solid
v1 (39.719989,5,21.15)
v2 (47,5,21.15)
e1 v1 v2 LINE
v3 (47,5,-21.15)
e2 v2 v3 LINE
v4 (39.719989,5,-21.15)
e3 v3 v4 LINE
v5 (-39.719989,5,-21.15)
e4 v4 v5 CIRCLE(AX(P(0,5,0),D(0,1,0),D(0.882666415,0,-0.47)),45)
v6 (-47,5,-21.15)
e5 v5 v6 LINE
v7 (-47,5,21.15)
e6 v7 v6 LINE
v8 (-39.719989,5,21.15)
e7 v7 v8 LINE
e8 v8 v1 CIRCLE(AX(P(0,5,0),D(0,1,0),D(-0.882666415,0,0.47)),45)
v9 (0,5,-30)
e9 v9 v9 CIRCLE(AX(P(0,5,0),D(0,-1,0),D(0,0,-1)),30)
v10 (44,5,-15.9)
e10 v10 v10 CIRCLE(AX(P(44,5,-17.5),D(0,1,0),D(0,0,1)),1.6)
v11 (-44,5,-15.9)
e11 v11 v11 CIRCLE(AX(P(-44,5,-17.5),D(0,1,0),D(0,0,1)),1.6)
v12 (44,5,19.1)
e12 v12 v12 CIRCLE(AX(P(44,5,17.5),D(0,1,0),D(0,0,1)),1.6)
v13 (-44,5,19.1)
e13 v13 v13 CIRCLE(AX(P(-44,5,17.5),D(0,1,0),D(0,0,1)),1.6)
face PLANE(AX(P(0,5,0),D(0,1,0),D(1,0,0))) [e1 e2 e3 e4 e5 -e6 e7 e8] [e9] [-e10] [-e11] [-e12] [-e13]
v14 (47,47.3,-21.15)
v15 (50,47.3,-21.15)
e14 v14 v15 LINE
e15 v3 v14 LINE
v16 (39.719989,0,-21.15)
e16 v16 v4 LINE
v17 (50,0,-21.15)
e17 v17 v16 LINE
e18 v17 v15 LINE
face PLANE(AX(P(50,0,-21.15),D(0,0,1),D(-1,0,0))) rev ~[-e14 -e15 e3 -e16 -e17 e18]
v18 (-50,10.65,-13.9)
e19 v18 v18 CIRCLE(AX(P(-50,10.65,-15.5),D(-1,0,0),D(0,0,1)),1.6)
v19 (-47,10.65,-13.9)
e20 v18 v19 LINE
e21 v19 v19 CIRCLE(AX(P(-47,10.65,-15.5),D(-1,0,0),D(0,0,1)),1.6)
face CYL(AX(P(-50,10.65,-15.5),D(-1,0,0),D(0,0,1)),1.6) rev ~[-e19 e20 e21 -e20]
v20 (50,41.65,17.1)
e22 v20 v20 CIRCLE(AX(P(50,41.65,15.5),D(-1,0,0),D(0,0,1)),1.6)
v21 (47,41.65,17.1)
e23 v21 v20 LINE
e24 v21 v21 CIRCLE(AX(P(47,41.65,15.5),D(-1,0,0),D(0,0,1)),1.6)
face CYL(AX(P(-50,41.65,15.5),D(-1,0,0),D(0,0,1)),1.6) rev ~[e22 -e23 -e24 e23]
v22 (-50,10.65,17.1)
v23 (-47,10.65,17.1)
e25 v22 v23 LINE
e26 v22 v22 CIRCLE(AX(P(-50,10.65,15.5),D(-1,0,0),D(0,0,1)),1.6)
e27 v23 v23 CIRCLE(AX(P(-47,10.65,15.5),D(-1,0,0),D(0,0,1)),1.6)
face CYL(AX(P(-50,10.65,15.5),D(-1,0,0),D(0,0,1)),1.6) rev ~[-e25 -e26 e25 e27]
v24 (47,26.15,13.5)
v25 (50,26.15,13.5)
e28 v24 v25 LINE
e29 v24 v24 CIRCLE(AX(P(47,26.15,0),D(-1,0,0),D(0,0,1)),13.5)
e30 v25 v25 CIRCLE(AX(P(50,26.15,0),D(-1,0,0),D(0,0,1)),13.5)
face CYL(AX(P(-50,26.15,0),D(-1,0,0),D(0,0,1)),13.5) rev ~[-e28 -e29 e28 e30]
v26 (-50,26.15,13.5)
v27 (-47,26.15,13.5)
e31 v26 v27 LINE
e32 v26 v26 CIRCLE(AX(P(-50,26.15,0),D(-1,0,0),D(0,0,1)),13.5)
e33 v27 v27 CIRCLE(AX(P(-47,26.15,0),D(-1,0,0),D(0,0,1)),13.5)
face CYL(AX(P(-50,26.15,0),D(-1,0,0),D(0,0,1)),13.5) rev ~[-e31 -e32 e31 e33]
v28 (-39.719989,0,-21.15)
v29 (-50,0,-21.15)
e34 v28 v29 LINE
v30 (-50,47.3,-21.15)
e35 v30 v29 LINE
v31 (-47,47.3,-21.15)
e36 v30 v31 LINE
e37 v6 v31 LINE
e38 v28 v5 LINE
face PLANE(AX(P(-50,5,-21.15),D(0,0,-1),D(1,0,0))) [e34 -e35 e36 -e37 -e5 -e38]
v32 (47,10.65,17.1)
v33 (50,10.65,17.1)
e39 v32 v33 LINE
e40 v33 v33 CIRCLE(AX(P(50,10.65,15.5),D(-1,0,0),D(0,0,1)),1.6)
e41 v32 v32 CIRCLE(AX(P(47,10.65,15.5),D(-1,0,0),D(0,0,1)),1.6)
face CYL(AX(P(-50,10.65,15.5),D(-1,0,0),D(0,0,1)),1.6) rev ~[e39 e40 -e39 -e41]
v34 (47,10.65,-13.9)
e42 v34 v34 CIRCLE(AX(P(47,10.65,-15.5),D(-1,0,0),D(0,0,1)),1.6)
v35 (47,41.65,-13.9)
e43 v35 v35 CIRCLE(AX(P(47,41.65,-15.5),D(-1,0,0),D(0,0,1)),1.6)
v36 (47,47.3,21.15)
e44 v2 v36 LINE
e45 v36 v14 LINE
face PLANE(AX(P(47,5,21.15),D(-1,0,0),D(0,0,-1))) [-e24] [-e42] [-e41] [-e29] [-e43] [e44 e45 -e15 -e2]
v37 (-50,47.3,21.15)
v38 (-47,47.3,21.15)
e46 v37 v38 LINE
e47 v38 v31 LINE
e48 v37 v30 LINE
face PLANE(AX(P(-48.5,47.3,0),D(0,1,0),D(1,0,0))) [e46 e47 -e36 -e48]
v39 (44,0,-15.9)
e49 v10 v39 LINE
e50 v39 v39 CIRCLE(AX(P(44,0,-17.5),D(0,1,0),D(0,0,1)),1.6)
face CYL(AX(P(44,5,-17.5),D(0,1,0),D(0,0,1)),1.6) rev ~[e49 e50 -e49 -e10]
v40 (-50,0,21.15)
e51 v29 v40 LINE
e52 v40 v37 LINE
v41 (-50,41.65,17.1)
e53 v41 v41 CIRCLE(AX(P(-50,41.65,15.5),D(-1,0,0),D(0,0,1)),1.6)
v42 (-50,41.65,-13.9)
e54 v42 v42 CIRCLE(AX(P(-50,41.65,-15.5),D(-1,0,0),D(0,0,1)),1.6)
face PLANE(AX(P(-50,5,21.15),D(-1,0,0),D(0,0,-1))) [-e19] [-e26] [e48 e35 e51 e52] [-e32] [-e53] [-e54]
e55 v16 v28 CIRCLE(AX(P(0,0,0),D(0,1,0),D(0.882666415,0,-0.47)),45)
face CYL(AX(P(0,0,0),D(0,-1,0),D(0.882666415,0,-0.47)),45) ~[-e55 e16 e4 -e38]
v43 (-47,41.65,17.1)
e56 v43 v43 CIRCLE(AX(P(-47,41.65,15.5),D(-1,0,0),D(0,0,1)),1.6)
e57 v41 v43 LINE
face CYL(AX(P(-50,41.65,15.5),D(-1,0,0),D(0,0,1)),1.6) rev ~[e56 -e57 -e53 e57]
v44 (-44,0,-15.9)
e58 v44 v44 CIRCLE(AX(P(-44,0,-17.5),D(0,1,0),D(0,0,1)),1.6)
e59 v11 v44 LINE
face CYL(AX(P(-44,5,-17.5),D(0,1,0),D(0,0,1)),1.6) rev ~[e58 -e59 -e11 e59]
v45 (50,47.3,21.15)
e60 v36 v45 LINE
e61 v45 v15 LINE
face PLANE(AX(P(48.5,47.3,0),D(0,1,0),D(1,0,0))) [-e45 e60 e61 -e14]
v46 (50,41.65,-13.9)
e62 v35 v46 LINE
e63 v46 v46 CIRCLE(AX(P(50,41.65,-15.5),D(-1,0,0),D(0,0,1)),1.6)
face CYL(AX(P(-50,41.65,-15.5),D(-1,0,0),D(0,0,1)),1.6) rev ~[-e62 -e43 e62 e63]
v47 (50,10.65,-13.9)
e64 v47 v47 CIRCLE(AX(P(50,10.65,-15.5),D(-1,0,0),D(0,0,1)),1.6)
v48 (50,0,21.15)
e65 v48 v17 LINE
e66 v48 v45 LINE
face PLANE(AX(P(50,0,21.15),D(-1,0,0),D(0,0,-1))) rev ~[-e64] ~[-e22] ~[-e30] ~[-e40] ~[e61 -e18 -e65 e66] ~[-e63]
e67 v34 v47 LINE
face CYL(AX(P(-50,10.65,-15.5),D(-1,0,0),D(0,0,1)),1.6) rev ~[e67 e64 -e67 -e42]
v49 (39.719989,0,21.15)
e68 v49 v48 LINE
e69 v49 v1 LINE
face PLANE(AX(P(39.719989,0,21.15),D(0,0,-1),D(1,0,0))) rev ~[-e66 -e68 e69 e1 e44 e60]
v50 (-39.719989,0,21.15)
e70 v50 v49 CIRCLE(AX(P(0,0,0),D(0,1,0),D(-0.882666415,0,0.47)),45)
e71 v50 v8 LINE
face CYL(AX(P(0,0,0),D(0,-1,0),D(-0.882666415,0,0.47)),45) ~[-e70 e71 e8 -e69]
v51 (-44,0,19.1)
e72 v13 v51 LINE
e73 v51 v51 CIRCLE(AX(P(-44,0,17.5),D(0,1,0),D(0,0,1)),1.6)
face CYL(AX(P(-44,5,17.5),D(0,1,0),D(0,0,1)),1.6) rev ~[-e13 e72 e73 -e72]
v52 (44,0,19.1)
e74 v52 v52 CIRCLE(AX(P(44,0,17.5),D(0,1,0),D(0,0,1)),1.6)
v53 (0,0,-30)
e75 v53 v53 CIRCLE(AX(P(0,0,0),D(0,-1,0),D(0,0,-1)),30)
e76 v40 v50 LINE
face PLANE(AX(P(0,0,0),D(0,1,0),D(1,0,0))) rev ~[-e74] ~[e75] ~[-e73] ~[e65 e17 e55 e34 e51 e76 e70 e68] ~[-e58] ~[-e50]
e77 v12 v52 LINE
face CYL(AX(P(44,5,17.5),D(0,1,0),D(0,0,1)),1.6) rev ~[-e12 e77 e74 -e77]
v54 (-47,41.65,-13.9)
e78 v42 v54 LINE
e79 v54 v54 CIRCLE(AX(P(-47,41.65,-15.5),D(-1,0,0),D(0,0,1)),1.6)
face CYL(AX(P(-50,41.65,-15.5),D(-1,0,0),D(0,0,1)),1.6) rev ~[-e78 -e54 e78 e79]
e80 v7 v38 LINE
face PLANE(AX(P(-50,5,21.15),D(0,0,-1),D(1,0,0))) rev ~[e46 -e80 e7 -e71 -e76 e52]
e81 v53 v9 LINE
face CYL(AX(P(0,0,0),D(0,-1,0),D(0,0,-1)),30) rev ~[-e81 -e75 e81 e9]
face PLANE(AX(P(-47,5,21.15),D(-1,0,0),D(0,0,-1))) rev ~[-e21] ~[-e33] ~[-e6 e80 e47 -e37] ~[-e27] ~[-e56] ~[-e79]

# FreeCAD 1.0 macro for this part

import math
import FreeCAD as App
import Part
import Sketcher

V = App.Vector


def add_polygon(sketch, points):
    """Adds a closed chain of lines whose ends are joined by coincident constraints."""
    first, n = sketch.GeometryCount, len(points)
    for a, b in zip(points, points[1:] + points[:1]):
        sketch.addGeometry(Part.LineSegment(App.Vector(*a, 0), App.Vector(*b, 0)), False)
    for i in range(n):
        sketch.addConstraint(Sketcher.Constraint("Coincident", first + i, 2, first + (i + 1) % n, 1))

doc = App.newDocument("Part")
body = doc.addObject("PartDesign::Body", "Body")

sketch1 = body.newObject("Sketcher::SketchObject", "Sketch")
sketch1.AttachmentSupport = (doc.getObject("XZ_Plane"), [""])
sketch1.MapMode = "FlatFace"
sketch1.addGeometry([
    Part.LineSegment(V(-40, -21, 0), V(-50, -21, 0)),
    Part.LineSegment(V(-50, -21, 0), V(-50, 21, 0)),
    Part.LineSegment(V(-50, 21, 0), V(-40, 21, 0)),
    Part.ArcOfCircle(Part.Circle(V(0, 0, 0), V(0, 0, 1), 45), math.radians(28), math.radians(152)),
    Part.LineSegment(V(40, 21, 0), V(50, 21, 0)),
    Part.LineSegment(V(50, 21, 0), V(50, -21, 0)),
    Part.LineSegment(V(50, -21, 0), V(40, -21, 0)),
    Part.ArcOfCircle(Part.Circle(V(0, 0, 0), V(0, 0, 1), 45), math.radians(-152), math.radians(-28)),
], False)
sketch1.addConstraint([
    Sketcher.Constraint("Coincident", 0, 2, 1, 1),
    Sketcher.Constraint("Coincident", 1, 2, 2, 1),
    Sketcher.Constraint("Coincident", 2, 2, 3, 2),
    Sketcher.Constraint("Coincident", 3, 1, 4, 1),
    Sketcher.Constraint("Coincident", 4, 2, 5, 1),
    Sketcher.Constraint("Coincident", 5, 2, 6, 1),
    Sketcher.Constraint("Coincident", 6, 2, 7, 2),
    Sketcher.Constraint("Coincident", 7, 1, 0, 1),
    Sketcher.Constraint("Horizontal", 0),
    Sketcher.Constraint("Vertical", 1),
    Sketcher.Constraint("Horizontal", 2),
    Sketcher.Constraint("Horizontal", 4),
    Sketcher.Constraint("Vertical", 5),
    Sketcher.Constraint("Horizontal", 6),
    Sketcher.Constraint("Coincident", 3, 3, -1, 1),
    Sketcher.Constraint("Coincident", 7, 3, -1, 1),
    Sketcher.Constraint("Equal", 3, 7),
    Sketcher.Constraint("Symmetric", 0, 2, 4, 2, -1, 1),
    Sketcher.Constraint("Horizontal", 2, 2, 3, 1),
    Sketcher.Constraint("Horizontal", 0, 2, 5, 2),
    Sketcher.Constraint("Radius", 3, 45.0),
    Sketcher.Constraint("DistanceY", 1, 1, 1, 2, 42.3),
    Sketcher.Constraint("DistanceX", 0, 2, -1, 1, 50.0),
])
pad1 = body.newObject("PartDesign::Pad", "Pad")
pad1.Profile = sketch1
pad1.Length = 5
pad1.Reversed = True

sketch2 = body.newObject("Sketcher::SketchObject", "Sketch001")
sketch2.AttachmentSupport = (doc.getObject("XZ_Plane"), [""])
sketch2.MapMode = "FlatFace"
sketch2.AttachmentOffset = App.Placement(V(0, 0, -5), App.Rotation())
add_polygon(sketch2, [(-50, -21.1), (-50, 21.1), (-47, 21.1), (-47, -21.1)])
add_polygon(sketch2, [(47, -21.1), (47, 21.1), (50, 21.1), (50, -21.1)])
sketch2.addConstraint([
    Sketcher.Constraint("Vertical", 0),
    Sketcher.Constraint("Horizontal", 1),
    Sketcher.Constraint("Vertical", 2),
    Sketcher.Constraint("Horizontal", 3),
    Sketcher.Constraint("Vertical", 4),
    Sketcher.Constraint("Horizontal", 5),
    Sketcher.Constraint("Vertical", 6),
    Sketcher.Constraint("Horizontal", 7),
    Sketcher.Constraint("Symmetric", 2, 2, 4, 2, -1, 1),
    Sketcher.Constraint("Symmetric", 0, 2, 6, 2, -1, 1),
    Sketcher.Constraint("Horizontal", 1, 2, 4, 2),
    Sketcher.Constraint("DistanceX", 1, 1, 1, 2, 3.0),
    Sketcher.Constraint("DistanceY", 0, 1, 0, 2, 42.3),
    Sketcher.Constraint("DistanceX", 0, 2, -1, 1, 50.0),
])
pad2 = body.newObject("PartDesign::Pad", "Pad001")
pad2.Profile = sketch2
pad2.Length = 42.3
pad2.Reversed = True

sketch3 = body.newObject("Sketcher::SketchObject", "Sketch002")
sketch3.AttachmentSupport = (doc.getObject("YZ_Plane"), [""])
sketch3.MapMode = "FlatFace"
sketch3.AttachmentOffset = App.Placement(V(0, 0, -50), App.Rotation())
sketch3.addGeometry([
    Part.Circle(V(41.6, -15.5, 0), V(0, 0, 1), 1.6),
    Part.Circle(V(41.6, 15.5, 0), V(0, 0, 1), 1.6),
    Part.Circle(V(10.7, 15.5, 0), V(0, 0, 1), 1.6),
    Part.Circle(V(10.7, -15.5, 0), V(0, 0, 1), 1.6),
    Part.Circle(V(26.1, 0, 0), V(0, 0, 1), 13.5),
], False)
sketch3.addConstraint([
    Sketcher.Constraint("Equal", 0, 1),
    Sketcher.Constraint("Equal", 1, 2),
    Sketcher.Constraint("Equal", 2, 3),
    Sketcher.Constraint("Symmetric", 0, 3, 1, 3, -1),
    Sketcher.Constraint("Symmetric", 2, 3, 3, 3, -1),
    Sketcher.Constraint("PointOnObject", 4, 3, -1),
    Sketcher.Constraint("Horizontal", 1, 3, 2, 3),
    Sketcher.Constraint("Diameter", 4, 27.0),
    Sketcher.Constraint("Diameter", 0, 3.2),
    Sketcher.Constraint("DistanceY", 0, 3, 1, 3, 31.0),
    Sketcher.Constraint("DistanceX", 2, 3, 1, 3, 31.0),
    Sketcher.Constraint("DistanceX", 4, 3, 0, 3, 15.5),
    Sketcher.Constraint("DistanceX", -1, 1, 0, 3, 41.65),
])
pocket1 = body.newObject("PartDesign::Pocket", "Pocket")
pocket1.Profile = sketch3
pocket1.Type = "ThroughAll"
pocket1.Reversed = True

sketch4 = body.newObject("Sketcher::SketchObject", "Sketch003")
sketch4.AttachmentSupport = (doc.getObject("XZ_Plane"), [""])
sketch4.MapMode = "FlatFace"
sketch4.addGeometry(Part.Circle(V(0, 0, 0), V(0, 0, 1), 30), False)
sketch4.addConstraint([
    Sketcher.Constraint("Coincident", 0, 3, -1, 1),
    Sketcher.Constraint("Diameter", 0, 60.0),
])
pocket2 = body.newObject("PartDesign::Pocket", "Pocket001")
pocket2.Profile = sketch4
pocket2.Type = "UpToFirst"

sketch5 = body.newObject("Sketcher::SketchObject", "Sketch004")
sketch5.AttachmentSupport = (doc.getObject("XZ_Plane"), [""])
sketch5.MapMode = "FlatFace"
sketch5.AttachmentOffset = App.Placement(V(0, 0, -5), App.Rotation())
sketch5.addGeometry(Part.Circle(V(44, 17.5, 0), V(0, 0, 1), 1.6), False)
sketch5.addConstraint([
    Sketcher.Constraint("Diameter", 0, 3.2),
    Sketcher.Constraint("DistanceX", -1, 1, 0, 3, 44.0),
    Sketcher.Constraint("DistanceY", -1, 1, 0, 3, 17.5),
])
pocket3 = body.newObject("PartDesign::Pocket", "Pocket002")
pocket3.Profile = sketch5
pocket3.Type = "UpToFirst"
pocket3.Reversed = True

sketch6 = body.newObject("Sketcher::SketchObject", "Sketch005")
sketch6.AttachmentSupport = (doc.getObject("XZ_Plane"), [""])
sketch6.MapMode = "FlatFace"
sketch6.AttachmentOffset = App.Placement(V(0, 0, -5), App.Rotation())
sketch6.addGeometry(Part.Circle(V(44, -17.5, 0), V(0, 0, 1), 1.6), False)
sketch6.addConstraint([
    Sketcher.Constraint("Diameter", 0, 3.2),
    Sketcher.Constraint("DistanceX", -1, 1, 0, 3, 44.0),
    Sketcher.Constraint("DistanceY", 0, 3, -1, 1, 17.5),
])
pocket4 = body.newObject("PartDesign::Pocket", "Pocket003")
pocket4.Profile = sketch6
pocket4.Type = "UpToFirst"
pocket4.Reversed = True

sketch7 = body.newObject("Sketcher::SketchObject", "Sketch006")
sketch7.AttachmentSupport = (doc.getObject("XZ_Plane"), [""])
sketch7.MapMode = "FlatFace"
sketch7.AttachmentOffset = App.Placement(V(0, 0, -5), App.Rotation())
sketch7.addGeometry(Part.Circle(V(-44, -17.5, 0), V(0, 0, 1), 1.6), False)
sketch7.addConstraint([
    Sketcher.Constraint("Diameter", 0, 3.2),
    Sketcher.Constraint("DistanceX", 0, 3, -1, 1, 44.0),
    Sketcher.Constraint("DistanceY", 0, 3, -1, 1, 17.5),
])
pocket5 = body.newObject("PartDesign::Pocket", "Pocket004")
pocket5.Profile = sketch7
pocket5.Type = "UpToFirst"
pocket5.Reversed = True

sketch8 = body.newObject("Sketcher::SketchObject", "Sketch007")
sketch8.AttachmentSupport = (doc.getObject("XZ_Plane"), [""])
sketch8.MapMode = "FlatFace"
sketch8.AttachmentOffset = App.Placement(V(0, 0, -5), App.Rotation())
sketch8.addGeometry(Part.Circle(V(-44, 17.5, 0), V(0, 0, 1), 1.6), False)
sketch8.addConstraint([
    Sketcher.Constraint("Diameter", 0, 3.2),
    Sketcher.Constraint("DistanceX", 0, 3, -1, 1, 44.0),
    Sketcher.Constraint("DistanceY", -1, 1, 0, 3, 17.5),
])
pocket6 = body.newObject("PartDesign::Pocket", "Pocket005")
pocket6.Profile = sketch8
pocket6.Type = "UpToFirst"
pocket6.Reversed = True

doc.recompute()
